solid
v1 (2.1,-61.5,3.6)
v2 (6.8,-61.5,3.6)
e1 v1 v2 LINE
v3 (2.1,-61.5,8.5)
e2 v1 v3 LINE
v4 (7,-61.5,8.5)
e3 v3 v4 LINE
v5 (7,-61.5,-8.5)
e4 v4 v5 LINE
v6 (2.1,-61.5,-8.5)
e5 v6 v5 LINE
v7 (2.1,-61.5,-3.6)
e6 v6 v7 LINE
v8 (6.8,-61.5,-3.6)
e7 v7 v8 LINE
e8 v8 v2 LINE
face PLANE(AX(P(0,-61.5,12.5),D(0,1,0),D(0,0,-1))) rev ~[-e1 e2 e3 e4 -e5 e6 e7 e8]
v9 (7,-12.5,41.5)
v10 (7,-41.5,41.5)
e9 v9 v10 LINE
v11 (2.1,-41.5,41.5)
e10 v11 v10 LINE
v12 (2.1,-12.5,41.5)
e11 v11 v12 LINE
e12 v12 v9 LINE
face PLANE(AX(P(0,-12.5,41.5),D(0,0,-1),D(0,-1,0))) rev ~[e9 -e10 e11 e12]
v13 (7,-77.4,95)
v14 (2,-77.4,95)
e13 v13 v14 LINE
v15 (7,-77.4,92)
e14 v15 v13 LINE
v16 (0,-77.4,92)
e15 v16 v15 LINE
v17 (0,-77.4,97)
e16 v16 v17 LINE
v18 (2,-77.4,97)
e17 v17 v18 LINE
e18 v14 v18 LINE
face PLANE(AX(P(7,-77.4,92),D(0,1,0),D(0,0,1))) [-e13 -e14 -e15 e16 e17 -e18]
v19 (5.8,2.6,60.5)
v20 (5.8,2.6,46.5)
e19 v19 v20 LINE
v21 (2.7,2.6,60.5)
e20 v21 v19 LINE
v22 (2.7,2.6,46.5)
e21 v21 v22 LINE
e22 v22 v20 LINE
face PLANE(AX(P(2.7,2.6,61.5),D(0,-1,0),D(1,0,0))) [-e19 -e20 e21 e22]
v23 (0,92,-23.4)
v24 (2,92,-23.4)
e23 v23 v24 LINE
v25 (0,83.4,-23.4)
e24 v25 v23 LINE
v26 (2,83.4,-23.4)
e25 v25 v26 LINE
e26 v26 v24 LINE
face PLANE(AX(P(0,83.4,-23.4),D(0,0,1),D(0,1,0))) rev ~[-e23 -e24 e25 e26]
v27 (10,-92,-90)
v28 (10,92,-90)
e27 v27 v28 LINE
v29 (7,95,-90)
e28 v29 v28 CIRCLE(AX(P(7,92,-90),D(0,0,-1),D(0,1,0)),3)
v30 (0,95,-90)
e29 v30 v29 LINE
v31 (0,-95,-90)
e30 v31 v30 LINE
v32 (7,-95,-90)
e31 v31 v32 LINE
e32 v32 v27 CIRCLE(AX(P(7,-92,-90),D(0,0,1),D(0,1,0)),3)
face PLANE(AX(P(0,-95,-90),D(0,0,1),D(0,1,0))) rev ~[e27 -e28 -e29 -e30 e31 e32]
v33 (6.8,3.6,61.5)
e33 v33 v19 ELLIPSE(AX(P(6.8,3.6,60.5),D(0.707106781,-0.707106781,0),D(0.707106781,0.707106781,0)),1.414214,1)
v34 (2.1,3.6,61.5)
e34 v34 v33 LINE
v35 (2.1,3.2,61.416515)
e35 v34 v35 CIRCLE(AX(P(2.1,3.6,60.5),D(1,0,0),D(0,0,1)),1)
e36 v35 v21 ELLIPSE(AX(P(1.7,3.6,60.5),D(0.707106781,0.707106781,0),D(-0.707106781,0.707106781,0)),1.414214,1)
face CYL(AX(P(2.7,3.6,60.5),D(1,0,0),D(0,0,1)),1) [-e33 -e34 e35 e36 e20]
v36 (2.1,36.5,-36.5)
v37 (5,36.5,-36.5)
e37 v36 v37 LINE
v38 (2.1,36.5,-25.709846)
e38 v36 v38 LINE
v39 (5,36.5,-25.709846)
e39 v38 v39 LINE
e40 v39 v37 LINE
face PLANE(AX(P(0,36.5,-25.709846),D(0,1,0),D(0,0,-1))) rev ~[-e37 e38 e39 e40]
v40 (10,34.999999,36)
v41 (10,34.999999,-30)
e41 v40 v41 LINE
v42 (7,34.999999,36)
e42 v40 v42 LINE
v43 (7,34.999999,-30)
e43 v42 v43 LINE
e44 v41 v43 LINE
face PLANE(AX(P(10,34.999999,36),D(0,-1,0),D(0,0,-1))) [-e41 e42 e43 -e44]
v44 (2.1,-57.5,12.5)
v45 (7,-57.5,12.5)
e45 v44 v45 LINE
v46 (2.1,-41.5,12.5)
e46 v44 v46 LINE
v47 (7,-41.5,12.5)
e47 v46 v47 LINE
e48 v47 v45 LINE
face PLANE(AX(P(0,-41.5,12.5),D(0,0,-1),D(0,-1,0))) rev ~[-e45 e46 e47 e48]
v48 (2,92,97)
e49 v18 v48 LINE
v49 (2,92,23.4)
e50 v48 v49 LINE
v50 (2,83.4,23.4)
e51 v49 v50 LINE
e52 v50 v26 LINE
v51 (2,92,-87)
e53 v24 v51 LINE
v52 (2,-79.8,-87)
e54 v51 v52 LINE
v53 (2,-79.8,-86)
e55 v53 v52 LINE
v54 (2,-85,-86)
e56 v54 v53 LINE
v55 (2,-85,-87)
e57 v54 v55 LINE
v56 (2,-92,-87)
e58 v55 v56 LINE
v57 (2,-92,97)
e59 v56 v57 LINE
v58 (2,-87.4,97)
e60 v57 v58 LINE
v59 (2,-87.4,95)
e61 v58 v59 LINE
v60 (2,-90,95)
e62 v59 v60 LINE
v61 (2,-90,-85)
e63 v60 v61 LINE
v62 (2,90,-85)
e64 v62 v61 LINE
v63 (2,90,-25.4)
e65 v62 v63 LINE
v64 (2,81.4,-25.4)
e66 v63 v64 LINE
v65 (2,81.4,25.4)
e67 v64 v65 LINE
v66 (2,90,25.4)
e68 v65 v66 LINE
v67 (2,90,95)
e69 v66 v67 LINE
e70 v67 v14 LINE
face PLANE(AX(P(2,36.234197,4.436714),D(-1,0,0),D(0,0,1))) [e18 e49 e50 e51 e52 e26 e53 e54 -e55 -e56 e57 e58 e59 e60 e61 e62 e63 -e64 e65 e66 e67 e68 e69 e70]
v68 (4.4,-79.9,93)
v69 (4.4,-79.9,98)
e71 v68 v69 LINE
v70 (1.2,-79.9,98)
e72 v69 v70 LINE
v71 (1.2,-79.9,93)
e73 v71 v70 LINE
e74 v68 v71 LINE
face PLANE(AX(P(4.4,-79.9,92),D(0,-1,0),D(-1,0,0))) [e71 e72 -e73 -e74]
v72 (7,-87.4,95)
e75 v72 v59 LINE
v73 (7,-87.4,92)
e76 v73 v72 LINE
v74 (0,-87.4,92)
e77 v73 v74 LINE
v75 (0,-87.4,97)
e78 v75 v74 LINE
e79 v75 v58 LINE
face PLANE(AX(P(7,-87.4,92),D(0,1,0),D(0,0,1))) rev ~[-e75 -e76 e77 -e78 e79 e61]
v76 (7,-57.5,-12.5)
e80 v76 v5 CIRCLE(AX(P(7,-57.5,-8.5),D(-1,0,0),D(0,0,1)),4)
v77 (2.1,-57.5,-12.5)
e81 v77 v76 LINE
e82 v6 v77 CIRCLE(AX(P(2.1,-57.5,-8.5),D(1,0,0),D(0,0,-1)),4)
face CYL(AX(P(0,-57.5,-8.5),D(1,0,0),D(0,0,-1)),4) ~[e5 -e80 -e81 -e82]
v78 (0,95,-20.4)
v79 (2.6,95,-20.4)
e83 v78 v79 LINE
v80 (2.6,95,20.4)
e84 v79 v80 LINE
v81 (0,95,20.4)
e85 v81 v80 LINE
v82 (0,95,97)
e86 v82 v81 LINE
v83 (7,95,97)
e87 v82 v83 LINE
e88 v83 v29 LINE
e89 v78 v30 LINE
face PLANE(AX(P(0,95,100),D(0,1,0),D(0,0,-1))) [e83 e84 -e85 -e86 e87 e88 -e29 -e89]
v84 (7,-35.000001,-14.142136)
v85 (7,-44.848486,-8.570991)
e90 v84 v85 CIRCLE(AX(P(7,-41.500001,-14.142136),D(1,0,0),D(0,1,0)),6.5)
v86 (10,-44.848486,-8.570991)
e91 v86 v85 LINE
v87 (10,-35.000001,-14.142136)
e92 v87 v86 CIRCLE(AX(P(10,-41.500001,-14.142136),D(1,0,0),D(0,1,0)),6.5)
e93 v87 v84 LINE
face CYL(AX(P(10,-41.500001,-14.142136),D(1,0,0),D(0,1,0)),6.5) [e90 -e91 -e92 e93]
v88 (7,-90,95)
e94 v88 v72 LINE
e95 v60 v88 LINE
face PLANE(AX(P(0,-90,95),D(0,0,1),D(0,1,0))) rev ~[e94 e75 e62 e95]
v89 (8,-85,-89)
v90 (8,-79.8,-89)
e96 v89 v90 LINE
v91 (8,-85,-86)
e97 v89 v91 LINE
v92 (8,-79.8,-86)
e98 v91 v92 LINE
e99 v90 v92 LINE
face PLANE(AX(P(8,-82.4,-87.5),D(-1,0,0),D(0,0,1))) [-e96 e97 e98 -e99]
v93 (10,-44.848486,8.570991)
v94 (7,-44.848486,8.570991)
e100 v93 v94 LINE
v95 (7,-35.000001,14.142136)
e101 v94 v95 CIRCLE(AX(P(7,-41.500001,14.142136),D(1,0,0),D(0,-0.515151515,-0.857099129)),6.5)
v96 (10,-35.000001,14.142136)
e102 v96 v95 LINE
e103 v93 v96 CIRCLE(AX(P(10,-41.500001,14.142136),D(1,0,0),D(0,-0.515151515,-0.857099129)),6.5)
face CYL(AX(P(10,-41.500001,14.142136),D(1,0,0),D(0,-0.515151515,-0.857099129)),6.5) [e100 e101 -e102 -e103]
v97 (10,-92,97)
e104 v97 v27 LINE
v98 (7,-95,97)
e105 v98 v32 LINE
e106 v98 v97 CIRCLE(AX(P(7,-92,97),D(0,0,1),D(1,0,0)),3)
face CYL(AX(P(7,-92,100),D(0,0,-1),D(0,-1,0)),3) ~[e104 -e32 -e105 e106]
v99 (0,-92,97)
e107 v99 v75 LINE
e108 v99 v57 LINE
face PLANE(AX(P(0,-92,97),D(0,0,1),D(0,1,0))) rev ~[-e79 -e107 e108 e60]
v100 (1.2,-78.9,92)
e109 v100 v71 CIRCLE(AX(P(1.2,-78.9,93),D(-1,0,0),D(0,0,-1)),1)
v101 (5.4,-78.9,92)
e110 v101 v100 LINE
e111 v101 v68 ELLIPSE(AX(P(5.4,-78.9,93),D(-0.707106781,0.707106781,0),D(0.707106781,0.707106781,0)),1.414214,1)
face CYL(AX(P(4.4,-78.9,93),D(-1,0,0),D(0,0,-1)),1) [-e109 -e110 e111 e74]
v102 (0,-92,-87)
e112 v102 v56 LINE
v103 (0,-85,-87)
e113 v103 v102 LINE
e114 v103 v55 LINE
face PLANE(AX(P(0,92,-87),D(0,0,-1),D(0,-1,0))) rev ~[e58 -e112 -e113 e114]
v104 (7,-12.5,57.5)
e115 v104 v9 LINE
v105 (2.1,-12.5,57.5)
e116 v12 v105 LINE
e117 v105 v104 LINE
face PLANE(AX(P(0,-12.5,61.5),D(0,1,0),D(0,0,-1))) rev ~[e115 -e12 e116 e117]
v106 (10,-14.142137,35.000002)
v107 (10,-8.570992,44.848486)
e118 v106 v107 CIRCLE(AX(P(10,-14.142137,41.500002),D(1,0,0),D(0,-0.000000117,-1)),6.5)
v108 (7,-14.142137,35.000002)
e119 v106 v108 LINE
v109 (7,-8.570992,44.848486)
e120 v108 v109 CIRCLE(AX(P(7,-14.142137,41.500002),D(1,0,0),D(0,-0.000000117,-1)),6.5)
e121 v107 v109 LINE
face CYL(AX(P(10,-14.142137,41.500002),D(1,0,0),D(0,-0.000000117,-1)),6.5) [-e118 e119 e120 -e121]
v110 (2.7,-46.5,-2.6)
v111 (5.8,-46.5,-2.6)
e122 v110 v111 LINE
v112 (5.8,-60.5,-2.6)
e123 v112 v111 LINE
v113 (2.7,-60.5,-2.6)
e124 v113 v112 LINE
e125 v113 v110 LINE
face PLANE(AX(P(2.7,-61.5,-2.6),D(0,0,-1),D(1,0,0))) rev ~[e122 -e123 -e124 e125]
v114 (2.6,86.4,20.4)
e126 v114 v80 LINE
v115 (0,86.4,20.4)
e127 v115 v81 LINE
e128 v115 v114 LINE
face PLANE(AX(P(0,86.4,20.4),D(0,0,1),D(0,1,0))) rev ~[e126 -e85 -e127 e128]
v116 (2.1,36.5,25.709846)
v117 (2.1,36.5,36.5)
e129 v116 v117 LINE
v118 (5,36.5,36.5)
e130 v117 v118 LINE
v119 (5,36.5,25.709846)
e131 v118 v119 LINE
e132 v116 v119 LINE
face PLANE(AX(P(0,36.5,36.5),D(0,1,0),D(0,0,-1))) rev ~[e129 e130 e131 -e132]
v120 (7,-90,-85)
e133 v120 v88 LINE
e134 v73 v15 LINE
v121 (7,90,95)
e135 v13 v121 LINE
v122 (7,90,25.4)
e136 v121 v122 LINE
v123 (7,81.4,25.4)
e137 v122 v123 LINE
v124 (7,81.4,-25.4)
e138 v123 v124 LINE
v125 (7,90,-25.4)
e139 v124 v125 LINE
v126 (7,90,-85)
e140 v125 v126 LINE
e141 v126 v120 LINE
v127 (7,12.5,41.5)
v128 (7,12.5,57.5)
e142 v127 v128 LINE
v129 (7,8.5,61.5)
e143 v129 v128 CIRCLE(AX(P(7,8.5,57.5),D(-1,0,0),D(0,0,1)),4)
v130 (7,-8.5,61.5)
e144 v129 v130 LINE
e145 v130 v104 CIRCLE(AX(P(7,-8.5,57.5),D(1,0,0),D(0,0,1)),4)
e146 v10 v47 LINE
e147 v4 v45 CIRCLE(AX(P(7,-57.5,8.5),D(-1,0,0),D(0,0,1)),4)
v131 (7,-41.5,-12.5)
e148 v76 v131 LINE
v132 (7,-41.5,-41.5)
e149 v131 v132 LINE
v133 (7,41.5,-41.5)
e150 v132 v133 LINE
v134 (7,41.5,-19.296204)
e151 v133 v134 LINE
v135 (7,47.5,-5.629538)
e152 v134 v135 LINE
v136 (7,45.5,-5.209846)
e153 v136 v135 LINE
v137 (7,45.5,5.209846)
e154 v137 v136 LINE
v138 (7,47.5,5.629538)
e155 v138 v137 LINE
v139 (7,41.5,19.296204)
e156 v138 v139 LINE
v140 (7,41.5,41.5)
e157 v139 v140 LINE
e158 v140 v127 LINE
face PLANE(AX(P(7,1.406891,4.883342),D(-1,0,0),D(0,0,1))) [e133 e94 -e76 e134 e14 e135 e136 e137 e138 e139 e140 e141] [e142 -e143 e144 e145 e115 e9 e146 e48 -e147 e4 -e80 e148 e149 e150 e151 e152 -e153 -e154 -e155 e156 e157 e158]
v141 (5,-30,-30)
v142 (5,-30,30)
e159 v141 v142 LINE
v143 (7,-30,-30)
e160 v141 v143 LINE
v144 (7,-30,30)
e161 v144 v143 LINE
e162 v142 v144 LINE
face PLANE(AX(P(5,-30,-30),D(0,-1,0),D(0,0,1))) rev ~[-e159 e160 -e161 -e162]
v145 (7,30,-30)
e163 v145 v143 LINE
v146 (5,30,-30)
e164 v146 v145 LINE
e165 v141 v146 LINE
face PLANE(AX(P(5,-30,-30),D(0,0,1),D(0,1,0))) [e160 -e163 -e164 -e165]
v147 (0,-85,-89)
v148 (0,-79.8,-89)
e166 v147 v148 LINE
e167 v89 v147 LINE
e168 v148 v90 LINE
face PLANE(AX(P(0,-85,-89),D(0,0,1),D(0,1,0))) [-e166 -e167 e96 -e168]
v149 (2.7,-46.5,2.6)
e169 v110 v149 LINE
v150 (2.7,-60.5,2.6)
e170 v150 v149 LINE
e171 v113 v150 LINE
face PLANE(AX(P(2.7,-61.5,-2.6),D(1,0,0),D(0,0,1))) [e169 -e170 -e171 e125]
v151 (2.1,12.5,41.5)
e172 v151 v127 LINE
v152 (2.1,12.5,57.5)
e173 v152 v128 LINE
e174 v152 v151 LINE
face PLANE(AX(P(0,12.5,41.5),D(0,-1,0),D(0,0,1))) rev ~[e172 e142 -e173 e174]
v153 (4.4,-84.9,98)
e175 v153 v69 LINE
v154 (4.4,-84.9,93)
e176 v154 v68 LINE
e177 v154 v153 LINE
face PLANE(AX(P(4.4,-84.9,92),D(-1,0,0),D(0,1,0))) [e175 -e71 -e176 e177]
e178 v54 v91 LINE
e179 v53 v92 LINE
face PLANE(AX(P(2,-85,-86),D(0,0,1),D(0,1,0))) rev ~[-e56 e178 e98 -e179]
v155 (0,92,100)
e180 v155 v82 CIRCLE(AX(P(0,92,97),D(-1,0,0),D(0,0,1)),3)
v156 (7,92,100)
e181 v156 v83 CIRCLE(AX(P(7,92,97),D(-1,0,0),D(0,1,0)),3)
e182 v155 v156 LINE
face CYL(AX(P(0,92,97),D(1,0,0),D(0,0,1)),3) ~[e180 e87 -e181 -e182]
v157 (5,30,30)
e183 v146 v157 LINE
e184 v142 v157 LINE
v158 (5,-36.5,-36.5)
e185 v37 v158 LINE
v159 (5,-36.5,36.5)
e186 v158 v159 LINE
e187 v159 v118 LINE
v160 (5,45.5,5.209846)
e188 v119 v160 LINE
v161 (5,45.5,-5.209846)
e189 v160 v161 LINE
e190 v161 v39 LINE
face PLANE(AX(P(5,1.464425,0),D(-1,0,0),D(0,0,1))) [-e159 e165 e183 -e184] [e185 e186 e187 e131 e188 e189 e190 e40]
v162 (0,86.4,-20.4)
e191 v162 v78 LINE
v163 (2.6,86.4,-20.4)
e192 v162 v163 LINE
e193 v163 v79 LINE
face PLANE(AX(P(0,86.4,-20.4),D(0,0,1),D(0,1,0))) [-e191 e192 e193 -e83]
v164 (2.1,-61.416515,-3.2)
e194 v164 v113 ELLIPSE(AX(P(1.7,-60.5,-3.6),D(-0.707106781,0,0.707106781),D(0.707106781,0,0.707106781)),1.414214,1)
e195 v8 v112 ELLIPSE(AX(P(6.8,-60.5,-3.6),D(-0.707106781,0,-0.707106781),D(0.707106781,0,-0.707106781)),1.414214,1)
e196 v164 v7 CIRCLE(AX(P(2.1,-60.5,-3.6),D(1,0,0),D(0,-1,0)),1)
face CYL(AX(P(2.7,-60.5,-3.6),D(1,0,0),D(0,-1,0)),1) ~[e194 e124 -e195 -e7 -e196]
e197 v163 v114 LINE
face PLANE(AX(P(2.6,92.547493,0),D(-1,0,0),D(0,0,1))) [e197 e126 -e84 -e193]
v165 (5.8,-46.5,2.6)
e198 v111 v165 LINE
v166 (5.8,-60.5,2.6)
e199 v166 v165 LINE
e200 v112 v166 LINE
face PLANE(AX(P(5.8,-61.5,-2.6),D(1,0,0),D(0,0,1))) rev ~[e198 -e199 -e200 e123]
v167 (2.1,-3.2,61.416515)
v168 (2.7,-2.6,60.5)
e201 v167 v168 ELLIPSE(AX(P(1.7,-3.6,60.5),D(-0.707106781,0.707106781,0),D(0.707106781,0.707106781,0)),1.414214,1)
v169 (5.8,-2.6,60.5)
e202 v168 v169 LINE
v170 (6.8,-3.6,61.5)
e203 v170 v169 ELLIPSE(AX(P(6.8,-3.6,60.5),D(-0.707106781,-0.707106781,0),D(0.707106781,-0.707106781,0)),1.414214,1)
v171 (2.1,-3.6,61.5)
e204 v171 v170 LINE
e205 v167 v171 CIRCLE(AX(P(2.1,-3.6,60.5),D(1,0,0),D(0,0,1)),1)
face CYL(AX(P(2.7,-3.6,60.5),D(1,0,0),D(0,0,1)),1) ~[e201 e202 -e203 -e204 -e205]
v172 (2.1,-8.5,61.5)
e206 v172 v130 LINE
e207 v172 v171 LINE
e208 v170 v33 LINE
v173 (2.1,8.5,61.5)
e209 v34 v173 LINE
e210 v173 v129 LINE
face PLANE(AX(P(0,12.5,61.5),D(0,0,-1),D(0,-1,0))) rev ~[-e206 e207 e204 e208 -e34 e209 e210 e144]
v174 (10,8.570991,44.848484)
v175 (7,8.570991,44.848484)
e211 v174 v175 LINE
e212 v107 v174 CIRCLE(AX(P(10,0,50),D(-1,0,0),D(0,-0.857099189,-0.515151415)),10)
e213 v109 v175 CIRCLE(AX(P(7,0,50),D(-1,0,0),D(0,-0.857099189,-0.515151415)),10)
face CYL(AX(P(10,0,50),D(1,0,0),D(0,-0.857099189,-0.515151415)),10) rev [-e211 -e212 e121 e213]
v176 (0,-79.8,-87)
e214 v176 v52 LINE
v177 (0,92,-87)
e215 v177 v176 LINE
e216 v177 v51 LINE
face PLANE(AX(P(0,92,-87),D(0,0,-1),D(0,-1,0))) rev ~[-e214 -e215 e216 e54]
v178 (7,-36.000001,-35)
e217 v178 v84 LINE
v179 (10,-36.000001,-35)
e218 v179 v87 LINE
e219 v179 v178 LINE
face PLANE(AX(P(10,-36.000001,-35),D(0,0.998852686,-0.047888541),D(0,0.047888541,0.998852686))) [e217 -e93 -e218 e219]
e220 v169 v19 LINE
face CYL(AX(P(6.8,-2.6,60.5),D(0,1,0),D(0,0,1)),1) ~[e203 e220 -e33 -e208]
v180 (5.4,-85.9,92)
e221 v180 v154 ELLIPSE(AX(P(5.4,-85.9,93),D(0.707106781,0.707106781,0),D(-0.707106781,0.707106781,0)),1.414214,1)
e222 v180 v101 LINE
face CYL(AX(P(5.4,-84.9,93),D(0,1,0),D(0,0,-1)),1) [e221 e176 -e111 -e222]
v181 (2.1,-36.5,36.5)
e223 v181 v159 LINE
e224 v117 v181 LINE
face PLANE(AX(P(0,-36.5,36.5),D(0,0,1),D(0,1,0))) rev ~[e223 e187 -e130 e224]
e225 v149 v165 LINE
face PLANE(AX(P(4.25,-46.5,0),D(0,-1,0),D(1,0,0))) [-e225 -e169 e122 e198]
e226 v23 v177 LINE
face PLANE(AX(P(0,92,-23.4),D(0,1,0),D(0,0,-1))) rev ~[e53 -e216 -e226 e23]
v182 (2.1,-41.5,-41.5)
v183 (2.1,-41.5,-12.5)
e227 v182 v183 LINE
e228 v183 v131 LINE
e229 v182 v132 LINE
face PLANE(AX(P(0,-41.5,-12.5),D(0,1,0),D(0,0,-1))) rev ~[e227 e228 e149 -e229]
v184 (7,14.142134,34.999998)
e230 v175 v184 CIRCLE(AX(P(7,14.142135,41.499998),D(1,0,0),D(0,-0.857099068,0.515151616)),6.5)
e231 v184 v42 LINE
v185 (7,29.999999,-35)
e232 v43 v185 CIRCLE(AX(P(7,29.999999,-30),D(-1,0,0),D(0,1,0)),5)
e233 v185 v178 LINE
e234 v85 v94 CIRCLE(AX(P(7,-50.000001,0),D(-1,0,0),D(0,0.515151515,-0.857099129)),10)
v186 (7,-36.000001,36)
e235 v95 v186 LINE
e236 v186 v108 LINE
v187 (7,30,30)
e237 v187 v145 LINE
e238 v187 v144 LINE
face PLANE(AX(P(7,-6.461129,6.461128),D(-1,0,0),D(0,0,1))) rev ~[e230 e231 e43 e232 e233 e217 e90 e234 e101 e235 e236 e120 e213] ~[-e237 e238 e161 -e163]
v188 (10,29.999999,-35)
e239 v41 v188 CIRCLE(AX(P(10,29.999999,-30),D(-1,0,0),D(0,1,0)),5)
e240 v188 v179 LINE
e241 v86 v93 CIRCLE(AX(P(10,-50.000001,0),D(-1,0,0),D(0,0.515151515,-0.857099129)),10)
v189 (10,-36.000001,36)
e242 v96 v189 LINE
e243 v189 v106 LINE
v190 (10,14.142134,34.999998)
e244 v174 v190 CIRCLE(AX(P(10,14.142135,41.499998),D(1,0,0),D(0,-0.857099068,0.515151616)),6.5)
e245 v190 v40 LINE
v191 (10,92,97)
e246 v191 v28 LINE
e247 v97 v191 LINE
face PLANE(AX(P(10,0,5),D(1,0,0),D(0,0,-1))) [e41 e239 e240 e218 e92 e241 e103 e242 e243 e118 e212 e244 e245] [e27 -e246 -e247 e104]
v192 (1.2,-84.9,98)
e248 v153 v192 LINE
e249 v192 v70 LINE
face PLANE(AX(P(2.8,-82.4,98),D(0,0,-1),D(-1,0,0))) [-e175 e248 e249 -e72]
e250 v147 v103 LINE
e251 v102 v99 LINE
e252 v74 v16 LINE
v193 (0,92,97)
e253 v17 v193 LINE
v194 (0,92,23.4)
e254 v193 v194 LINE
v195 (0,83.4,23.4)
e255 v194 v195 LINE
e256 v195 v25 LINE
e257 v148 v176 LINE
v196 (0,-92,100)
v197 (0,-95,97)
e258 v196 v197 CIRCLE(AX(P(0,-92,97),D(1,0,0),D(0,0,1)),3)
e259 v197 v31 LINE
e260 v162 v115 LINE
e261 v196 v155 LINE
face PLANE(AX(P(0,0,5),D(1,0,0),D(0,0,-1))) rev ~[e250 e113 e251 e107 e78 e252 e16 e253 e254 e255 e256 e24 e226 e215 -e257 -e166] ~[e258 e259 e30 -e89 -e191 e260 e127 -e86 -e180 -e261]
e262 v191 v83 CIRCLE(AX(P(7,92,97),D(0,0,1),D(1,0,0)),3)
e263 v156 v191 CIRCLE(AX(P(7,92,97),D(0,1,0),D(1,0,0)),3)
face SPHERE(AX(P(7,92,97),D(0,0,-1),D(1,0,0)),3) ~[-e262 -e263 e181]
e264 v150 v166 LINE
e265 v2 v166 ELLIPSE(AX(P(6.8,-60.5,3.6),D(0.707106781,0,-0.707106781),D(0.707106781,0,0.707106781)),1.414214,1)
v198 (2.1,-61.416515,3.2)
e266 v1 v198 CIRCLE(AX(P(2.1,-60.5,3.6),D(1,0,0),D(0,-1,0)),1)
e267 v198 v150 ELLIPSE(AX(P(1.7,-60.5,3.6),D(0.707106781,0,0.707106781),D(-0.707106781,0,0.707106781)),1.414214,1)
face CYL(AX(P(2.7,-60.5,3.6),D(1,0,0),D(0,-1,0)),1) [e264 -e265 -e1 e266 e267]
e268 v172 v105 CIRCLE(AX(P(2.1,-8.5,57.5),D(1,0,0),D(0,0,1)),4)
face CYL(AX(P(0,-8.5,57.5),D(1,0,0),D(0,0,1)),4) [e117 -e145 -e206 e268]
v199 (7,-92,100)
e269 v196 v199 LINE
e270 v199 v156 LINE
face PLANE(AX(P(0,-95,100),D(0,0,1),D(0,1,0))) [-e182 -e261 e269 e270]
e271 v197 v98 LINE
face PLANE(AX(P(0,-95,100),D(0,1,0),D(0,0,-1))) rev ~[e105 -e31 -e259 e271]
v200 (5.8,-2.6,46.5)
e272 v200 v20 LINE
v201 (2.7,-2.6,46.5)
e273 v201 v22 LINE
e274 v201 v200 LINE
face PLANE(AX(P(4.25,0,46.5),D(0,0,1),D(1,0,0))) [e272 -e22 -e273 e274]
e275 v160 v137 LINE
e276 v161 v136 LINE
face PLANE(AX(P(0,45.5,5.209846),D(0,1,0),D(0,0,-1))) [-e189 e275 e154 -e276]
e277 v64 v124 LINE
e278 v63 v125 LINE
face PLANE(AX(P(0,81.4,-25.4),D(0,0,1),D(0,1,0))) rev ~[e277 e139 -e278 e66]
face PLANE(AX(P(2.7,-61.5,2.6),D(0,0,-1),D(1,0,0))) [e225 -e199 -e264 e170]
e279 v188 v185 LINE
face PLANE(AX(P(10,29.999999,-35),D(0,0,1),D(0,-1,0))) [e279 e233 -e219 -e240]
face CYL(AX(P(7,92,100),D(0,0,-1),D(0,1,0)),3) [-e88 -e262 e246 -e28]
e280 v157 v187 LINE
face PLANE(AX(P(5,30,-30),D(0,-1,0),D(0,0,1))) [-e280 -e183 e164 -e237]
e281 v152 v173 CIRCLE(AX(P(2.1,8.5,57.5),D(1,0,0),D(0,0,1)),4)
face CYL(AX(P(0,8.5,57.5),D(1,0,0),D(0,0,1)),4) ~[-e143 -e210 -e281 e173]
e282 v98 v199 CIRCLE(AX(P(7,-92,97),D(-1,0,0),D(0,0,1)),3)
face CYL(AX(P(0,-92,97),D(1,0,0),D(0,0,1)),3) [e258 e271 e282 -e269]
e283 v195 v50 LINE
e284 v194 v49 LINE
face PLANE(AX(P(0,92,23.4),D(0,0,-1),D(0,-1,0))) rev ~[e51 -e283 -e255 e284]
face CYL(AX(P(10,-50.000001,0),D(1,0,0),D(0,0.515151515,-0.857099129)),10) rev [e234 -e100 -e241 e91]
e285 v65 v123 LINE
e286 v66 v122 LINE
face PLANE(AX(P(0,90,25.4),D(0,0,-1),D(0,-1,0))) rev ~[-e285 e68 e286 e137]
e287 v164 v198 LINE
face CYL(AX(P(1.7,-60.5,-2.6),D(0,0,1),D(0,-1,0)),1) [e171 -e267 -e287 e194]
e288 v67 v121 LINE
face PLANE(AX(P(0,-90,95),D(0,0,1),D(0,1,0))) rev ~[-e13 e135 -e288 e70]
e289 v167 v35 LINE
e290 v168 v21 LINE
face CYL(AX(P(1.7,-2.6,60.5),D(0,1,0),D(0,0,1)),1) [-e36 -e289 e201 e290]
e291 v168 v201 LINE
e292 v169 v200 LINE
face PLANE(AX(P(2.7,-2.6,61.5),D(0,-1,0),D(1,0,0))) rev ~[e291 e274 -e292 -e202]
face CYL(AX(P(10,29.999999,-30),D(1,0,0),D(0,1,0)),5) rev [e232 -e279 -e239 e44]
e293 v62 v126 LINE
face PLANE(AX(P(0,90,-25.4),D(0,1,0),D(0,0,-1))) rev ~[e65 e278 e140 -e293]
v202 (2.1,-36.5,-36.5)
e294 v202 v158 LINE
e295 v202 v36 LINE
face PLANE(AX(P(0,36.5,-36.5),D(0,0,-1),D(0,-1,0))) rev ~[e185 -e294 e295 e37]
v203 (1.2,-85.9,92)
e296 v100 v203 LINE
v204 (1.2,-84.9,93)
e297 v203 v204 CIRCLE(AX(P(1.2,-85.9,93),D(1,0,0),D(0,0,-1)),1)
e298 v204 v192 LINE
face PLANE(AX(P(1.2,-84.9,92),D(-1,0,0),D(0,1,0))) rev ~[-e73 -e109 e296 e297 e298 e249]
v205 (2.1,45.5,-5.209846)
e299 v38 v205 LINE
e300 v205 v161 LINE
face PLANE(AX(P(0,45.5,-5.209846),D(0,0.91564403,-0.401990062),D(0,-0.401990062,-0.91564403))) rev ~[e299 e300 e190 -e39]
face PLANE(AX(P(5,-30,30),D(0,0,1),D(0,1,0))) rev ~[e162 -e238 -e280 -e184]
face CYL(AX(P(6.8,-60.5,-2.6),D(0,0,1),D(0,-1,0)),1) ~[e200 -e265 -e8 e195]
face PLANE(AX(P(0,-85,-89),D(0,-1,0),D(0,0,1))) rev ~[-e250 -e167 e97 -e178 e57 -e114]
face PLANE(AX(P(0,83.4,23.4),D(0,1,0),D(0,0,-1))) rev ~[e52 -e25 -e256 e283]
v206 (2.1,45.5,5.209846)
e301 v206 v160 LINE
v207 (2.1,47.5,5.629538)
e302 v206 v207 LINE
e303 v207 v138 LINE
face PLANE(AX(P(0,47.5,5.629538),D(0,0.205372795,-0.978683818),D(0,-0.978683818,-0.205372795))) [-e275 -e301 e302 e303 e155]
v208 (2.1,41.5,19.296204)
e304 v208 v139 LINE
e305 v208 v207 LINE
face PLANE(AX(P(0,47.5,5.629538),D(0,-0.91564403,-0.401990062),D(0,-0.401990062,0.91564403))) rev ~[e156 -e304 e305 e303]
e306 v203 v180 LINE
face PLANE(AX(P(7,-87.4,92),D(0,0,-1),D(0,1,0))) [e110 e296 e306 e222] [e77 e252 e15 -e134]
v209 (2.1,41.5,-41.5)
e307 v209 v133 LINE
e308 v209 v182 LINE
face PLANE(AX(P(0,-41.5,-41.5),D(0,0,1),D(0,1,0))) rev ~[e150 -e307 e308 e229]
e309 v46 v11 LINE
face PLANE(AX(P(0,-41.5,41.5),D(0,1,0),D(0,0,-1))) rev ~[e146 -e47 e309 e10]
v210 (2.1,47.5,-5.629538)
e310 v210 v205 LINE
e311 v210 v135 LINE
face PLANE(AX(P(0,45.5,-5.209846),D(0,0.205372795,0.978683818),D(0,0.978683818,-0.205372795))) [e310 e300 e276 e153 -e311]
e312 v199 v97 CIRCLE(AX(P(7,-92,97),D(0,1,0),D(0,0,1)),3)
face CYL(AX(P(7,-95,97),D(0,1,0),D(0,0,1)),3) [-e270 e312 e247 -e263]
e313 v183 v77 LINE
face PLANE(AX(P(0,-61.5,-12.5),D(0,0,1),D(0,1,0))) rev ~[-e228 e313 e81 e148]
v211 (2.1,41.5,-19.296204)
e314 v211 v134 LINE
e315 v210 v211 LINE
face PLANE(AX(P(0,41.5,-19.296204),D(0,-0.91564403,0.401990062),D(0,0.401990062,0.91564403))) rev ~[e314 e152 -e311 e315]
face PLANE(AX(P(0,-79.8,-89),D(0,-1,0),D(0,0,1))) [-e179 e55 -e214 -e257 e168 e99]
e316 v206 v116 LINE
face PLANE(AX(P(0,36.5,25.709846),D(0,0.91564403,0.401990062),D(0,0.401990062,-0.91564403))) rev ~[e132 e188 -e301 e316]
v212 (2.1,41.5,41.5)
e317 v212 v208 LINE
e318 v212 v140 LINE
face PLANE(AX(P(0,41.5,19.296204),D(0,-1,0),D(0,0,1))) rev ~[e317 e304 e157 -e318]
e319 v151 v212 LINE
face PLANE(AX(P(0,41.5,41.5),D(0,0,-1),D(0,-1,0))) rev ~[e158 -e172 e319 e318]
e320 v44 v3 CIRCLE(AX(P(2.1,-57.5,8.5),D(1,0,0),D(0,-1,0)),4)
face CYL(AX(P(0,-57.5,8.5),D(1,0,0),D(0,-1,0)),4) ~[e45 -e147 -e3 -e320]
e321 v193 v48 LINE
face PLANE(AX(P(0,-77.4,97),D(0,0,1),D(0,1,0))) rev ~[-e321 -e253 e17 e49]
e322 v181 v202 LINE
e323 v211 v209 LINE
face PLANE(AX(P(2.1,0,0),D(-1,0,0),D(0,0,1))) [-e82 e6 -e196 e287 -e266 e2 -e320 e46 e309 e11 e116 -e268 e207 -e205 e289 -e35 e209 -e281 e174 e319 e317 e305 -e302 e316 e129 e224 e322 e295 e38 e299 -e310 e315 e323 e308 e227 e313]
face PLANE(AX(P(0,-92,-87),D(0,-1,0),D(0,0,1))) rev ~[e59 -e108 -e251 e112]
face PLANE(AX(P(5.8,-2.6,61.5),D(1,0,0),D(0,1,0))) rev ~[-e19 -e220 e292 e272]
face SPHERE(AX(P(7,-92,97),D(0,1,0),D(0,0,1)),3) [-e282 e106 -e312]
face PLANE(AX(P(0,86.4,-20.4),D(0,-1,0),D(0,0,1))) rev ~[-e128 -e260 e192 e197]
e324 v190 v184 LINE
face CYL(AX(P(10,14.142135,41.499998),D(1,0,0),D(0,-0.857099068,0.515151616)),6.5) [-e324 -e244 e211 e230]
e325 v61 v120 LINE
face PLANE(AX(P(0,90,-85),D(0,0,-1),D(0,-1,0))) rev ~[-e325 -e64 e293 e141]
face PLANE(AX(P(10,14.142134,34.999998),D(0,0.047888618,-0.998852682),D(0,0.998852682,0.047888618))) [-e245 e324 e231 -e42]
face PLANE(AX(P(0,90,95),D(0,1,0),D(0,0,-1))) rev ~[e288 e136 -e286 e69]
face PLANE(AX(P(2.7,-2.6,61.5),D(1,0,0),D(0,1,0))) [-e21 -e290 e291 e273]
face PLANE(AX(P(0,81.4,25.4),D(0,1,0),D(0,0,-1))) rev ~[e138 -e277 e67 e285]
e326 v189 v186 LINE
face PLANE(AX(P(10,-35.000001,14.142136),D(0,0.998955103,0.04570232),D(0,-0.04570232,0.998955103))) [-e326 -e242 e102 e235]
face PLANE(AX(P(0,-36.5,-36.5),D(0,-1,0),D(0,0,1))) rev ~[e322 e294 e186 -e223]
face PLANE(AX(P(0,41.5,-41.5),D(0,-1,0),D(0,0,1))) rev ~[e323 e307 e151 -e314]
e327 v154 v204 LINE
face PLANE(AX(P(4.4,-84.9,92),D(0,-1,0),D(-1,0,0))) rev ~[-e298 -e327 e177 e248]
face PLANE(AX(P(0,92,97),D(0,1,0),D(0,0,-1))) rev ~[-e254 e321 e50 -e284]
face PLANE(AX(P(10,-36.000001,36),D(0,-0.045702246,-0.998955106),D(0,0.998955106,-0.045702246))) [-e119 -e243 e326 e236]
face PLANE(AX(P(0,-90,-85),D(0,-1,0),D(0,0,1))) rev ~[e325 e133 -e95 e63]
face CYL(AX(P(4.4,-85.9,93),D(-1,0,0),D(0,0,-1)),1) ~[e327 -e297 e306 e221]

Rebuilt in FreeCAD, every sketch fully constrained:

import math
import FreeCAD as App
import Part
import Sketcher

V = App.Vector


def edges_at(feature, points):
    """Names of the edges that pass closest to the given points."""
    edges = feature.Shape.Edges
    near = lambda p: min(range(len(edges)), key=lambda i: edges[i].distToShape(Part.Vertex(*p))[0])
    return sorted({f"Edge{near(p) + 1}" for p in points})


def add_polygon(sketch, points):
    """Adds a closed chain of lines whose ends are joined by coincident constraints."""
    first, n = sketch.GeometryCount, len(points)
    for a, b in zip(points, points[1:] + points[:1]):
        sketch.addGeometry(Part.LineSegment(App.Vector(*a, 0), App.Vector(*b, 0)), False)
    for i in range(n):
        sketch.addConstraint(Sketcher.Constraint("Coincident", first + i, 2, first + (i + 1) % n, 1))

doc = App.newDocument("Part")
body = doc.addObject("PartDesign::Body", "Body")

sketch1 = body.newObject("Sketcher::SketchObject", "Sketch")
sketch1.AttachmentSupport = (doc.getObject("YZ_Plane"), [""])
sketch1.MapMode = "FlatFace"
add_polygon(sketch1, [(95, 100), (-95, 100), (-95, -90), (95, -90)])
sketch1.addConstraint([
    Sketcher.Constraint("Horizontal", 0),
    Sketcher.Constraint("Vertical", 1),
    Sketcher.Constraint("Horizontal", 2),
    Sketcher.Constraint("Vertical", 3),
    Sketcher.Constraint("Equal", 2, 1),
    Sketcher.Constraint("DistanceX", 0, 2, 0, 1, 190.0),
    Sketcher.Constraint("DistanceX", 0, 2, -1, 1, 95.0),
    Sketcher.Constraint("DistanceY", -1, 1, 0, 2, 100.0),
])
pad1 = body.newObject("PartDesign::Pad", "Pad")
pad1.Profile = sketch1
pad1.Length = 10

sketch2 = body.newObject("Sketcher::SketchObject", "Sketch001")
sketch2.AttachmentSupport = (doc.getObject("YZ_Plane"), [""])
sketch2.MapMode = "FlatFace"
add_polygon(sketch2, [(-36, 36), (36, 36), (36, 26), (46, 5), (46, -5), (36, -26), (36, -36), (-36, -36)])
sketch2.addConstraint([
    Sketcher.Constraint("Horizontal", 0),
    Sketcher.Constraint("Vertical", 1),
    Sketcher.Constraint("Vertical", 3),
    Sketcher.Constraint("Vertical", 5),
    Sketcher.Constraint("Horizontal", 6),
    Sketcher.Constraint("Vertical", 7),
    Sketcher.Constraint("Symmetric", 0, 2, 6, 2, -1, 1),
    Sketcher.Constraint("Symmetric", 1, 2, 4, 2, -1),
    Sketcher.Constraint("Equal", 6, 7),
    Sketcher.Constraint("Equal", 2, 4),
    Sketcher.Constraint("DistanceX", 0, 1, 0, 2, 73.0),
    Sketcher.Constraint("DistanceX", 1, 2, 2, 2, 9.0),
    Sketcher.Constraint("DistanceY", 2, 2, 1, 2, 20.5),
    Sketcher.Constraint("DistanceY", 3, 2, 3, 1, 10.419692),
])
pocket1 = body.newObject("PartDesign::Pocket", "Pocket")
pocket1.Profile = sketch2
pocket1.Length = 5
pocket1.Reversed = True

sketch3 = body.newObject("Sketcher::SketchObject", "Sketch002")
sketch3.AttachmentSupport = (doc.getObject("YZ_Plane"), [""])
sketch3.MapMode = "FlatFace"
sketch3.AttachmentOffset = App.Placement(V(0, 0, 5), App.Rotation())
add_polygon(sketch3, [(30, -30), (-30, -30), (-30, 30), (30, 30)])
sketch3.addConstraint([
    Sketcher.Constraint("Horizontal", 0),
    Sketcher.Constraint("Vertical", 1),
    Sketcher.Constraint("Horizontal", 2),
    Sketcher.Constraint("Vertical", 3),
    Sketcher.Constraint("Symmetric", 0, 2, 2, 2, -1, 1),
    Sketcher.Constraint("Equal", 2, 1),
    Sketcher.Constraint("DistanceX", 0, 2, 0, 1, 60.0),
])
pocket2 = body.newObject("PartDesign::Pocket", "Pocket001")
pocket2.Profile = sketch3
pocket2.Type = "ThroughAll"
pocket2.Reversed = True

sketch4 = body.newObject("Sketcher::SketchObject", "Sketch003")
sketch4.AttachmentSupport = (doc.getObject("YZ_Plane"), [""])
sketch4.MapMode = "FlatFace"
sketch4.AttachmentOffset = App.Placement(V(0, 0, 10), App.Rotation())
sketch4.addGeometry([
    Part.LineSegment(V(-36, -35, 0), V(30, -35, 0)),
    Part.ArcOfCircle(Part.Circle(V(30, -30, 0), V(0, 0, 1), 5), math.radians(-90), math.radians(0)),
    Part.LineSegment(V(35, -30, 0), V(35, 36, 0)),
    Part.LineSegment(V(35, 36, 0), V(14, 35, 0)),
    Part.ArcOfCircle(Part.Circle(V(14, 41, 0), V(0, 0, 1), 6), math.radians(149), math.radians(270)),
    Part.ArcOfCircle(Part.Circle(V(0, 50, 0), V(0, 0, 1), 10), math.radians(-31), math.radians(211)),
    Part.ArcOfCircle(Part.Circle(V(-14, 42, 0), V(0, 0, 1), 7), math.radians(-90), math.radians(31)),
    Part.LineSegment(V(-14, 35, 0), V(-36, 36, 0)),
    Part.LineSegment(V(-36, 36, 0), V(-35, 14, 0)),
    Part.ArcOfCircle(Part.Circle(V(-42, 14, 0), V(0, 0, 1), 6), math.radians(-121), math.radians(0)),
    Part.ArcOfCircle(Part.Circle(V(-50, 0, 0), V(0, 0, 1), 10), math.radians(59), math.radians(301)),
    Part.ArcOfCircle(Part.Circle(V(-42, -14, 0), V(0, 0, 1), 6), math.radians(0), math.radians(121)),
    Part.LineSegment(V(-35, -14, 0), V(-36, -35, 0)),
], False)
sketch4.addConstraint([
    Sketcher.Constraint("Tangent", 0, 2, 1, 1),
    Sketcher.Constraint("Tangent", 1, 2, 2, 1),
    Sketcher.Constraint("Coincident", 2, 2, 3, 1),
    Sketcher.Constraint("Coincident", 3, 2, 4, 2),
    Sketcher.Constraint("Tangent", 4, 1, 5, 1),
    Sketcher.Constraint("Tangent", 5, 2, 6, 2),
    Sketcher.Constraint("Coincident", 6, 1, 7, 1),
    Sketcher.Constraint("Coincident", 7, 2, 8, 1),
    Sketcher.Constraint("Coincident", 8, 2, 9, 2),
    Sketcher.Constraint("Tangent", 9, 1, 10, 1),
    Sketcher.Constraint("Tangent", 10, 2, 11, 2),
    Sketcher.Constraint("Coincident", 11, 1, 12, 1),
    Sketcher.Constraint("Coincident", 12, 2, 0, 1),
    Sketcher.Constraint("Horizontal", 0),
    Sketcher.Constraint("Vertical", 2),
    Sketcher.Constraint("Equal", 4, 6),
    Sketcher.Constraint("Equal", 6, 9),
    Sketcher.Constraint("Equal", 5, 10),
    Sketcher.Constraint("Equal", 9, 11),
    Sketcher.Constraint("Symmetric", 4, 3, 6, 3, -2),
    Sketcher.Constraint("Symmetric", 9, 3, 11, 3, -1),
    Sketcher.Constraint("Horizontal", 2, 2, 7, 2),
    Sketcher.Constraint("Horizontal", 9, 3, 8, 2),
    Sketcher.Constraint("Vertical", 4, 3, 3, 2),
    Sketcher.Constraint("Vertical", 7, 2, 12, 2),
    Sketcher.Constraint("Equal", 0, 2),
    Sketcher.Constraint("Equal", 7, 8),
    Sketcher.Constraint("Equal", 3, 12),
    Sketcher.Constraint("Radius", 1, 5.0),
    Sketcher.Constraint("Radius", 5, 10.0),
    Sketcher.Constraint("Radius", 4, 6.5),
    Sketcher.Constraint("DistanceX", 0, 1, 0, 2, 66.0),
    Sketcher.Constraint("DistanceX", -1, 1, 1, 3, 29.999999),
    Sketcher.Constraint("DistanceY", 1, 3, -1, 1, 30.0),
    Sketcher.Constraint("DistanceY", -1, 1, 5, 3, 50.0),
    Sketcher.Constraint("DistanceX", 10, 3, -1, 1, 50.000001),
    Sketcher.Constraint("DistanceY", -1, 1, 3, 2, 34.999998),
    Sketcher.Constraint("DistanceX", 8, 2, -1, 1, 35.000001),
])
pocket3 = body.newObject("PartDesign::Pocket", "Pocket002")
pocket3.Profile = sketch4
pocket3.Length = 3

sketch5 = body.newObject("Sketcher::SketchObject", "Sketch004")
sketch5.AttachmentSupport = (doc.getObject("YZ_Plane"), [""])
sketch5.MapMode = "FlatFace"
add_polygon(sketch5, [(99, -20), (86, -20), (86, 20), (99, 20)])
sketch5.addConstraint([
    Sketcher.Constraint("Horizontal", 0),
    Sketcher.Constraint("Vertical", 1),
    Sketcher.Constraint("Horizontal", 2),
    Sketcher.Constraint("Vertical", 3),
    Sketcher.Constraint("DistanceY", 1, 1, 1, 2, 40.8),
    Sketcher.Constraint("DistanceX", -1, 1, 0, 2, 86.4),
    Sketcher.Constraint("DistanceY", 0, 2, -1, 1, 20.4),
    Sketcher.Constraint("DistanceX", 0, 2, 0, 1, 12.294985),
])
pocket4 = body.newObject("PartDesign::Pocket", "Pocket003")
pocket4.Profile = sketch5
pocket4.Length = 2.6
pocket4.Reversed = True

sketch6 = body.newObject("Sketcher::SketchObject", "Sketch005")
sketch6.AttachmentSupport = (doc.getObject("YZ_Plane"), [""])
sketch6.MapMode = "FlatFace"
add_polygon(sketch6, [(90, -25.4), (90, -85), (-90, -85), (-90, 95), (90, 95), (90, 25.4), (81.4, 25.4), (81.4, -25.4)])
add_polygon(sketch6, [(-41.5, -12.5), (-41.5, -41.5), (41.5, -41.5), (41.5, -19.3), (47.5, -5.6), (45.5, -5.2), (45.5, 5.2), (47.5, 5.6), (41.5, 19.3), (41.5, 41.5), (12.5, 41.5), (12.5, 61.5), (-12.5, 61.5), (-12.5, 41.5), (-41.5, 41.5), (-41.5, 12.5), (-61.5, 12.5), (-61.5, -12.5)])
sketch6.addConstraint([
    Sketcher.Constraint("Vertical", 0),
    Sketcher.Constraint("Horizontal", 1),
    Sketcher.Constraint("Vertical", 2),
    Sketcher.Constraint("Horizontal", 3),
    Sketcher.Constraint("Vertical", 4),
    Sketcher.Constraint("Horizontal", 5),
    Sketcher.Constraint("Vertical", 6),
    Sketcher.Constraint("Horizontal", 7),
    Sketcher.Constraint("Vertical", 8),
    Sketcher.Constraint("Horizontal", 9),
    Sketcher.Constraint("Vertical", 10),
    Sketcher.Constraint("Vertical", 13),
    Sketcher.Constraint("Vertical", 16),
    Sketcher.Constraint("Horizontal", 17),
    Sketcher.Constraint("Vertical", 18),
    Sketcher.Constraint("Horizontal", 19),
    Sketcher.Constraint("Vertical", 20),
    Sketcher.Constraint("Horizontal", 21),
    Sketcher.Constraint("Vertical", 22),
    Sketcher.Constraint("Horizontal", 23),
    Sketcher.Constraint("Vertical", 24),
    Sketcher.Constraint("Horizontal", 25),
    Sketcher.Constraint("Symmetric", 8, 2, 16, 2, -1, 1),
    Sketcher.Constraint("Symmetric", 9, 2, 21, 2, -1, 1),
    Sketcher.Constraint("Symmetric", 4, 2, 7, 2, -1),
    Sketcher.Constraint("Symmetric", 11, 2, 14, 2, -1),
    Sketcher.Constraint("Symmetric", 10, 2, 15, 2, -1),
    Sketcher.Constraint("Equal", 17, 21),
    Sketcher.Constraint("Equal", 3, 2),
    Sketcher.Constraint("Equal", 21, 8),
    Sketcher.Constraint("Equal", 25, 18),
    Sketcher.Constraint("Equal", 8, 22),
    Sketcher.Constraint("Equal", 19, 24),
    Sketcher.Constraint("Equal", 12, 14),
    Sketcher.Constraint("DistanceX", 1, 2, 1, 1, 180.0),
    Sketcher.Constraint("DistanceX", 9, 1, 9, 2, 83.0),
    Sketcher.Constraint("DistanceX", 17, 2, 17, 1, 29.0),
    Sketcher.Constraint("DistanceX", 23, 2, 23, 1, 20.0),
    Sketcher.Constraint("DistanceX", 5, 2, 5, 1, 8.6),
    Sketcher.Constraint("DistanceY", 0, 2, 0, 1, 59.6),
    Sketcher.Constraint("DistanceY", 4, 2, 4, 1, 69.6),
    Sketcher.Constraint("DistanceX", -1, 1, 0, 2, 90.0),
    Sketcher.Constraint("DistanceX", 10, 2, 11, 2, 6.0),
    Sketcher.Constraint("DistanceX", 12, 2, 11, 2, 2.0),
    Sketcher.Constraint("DistanceY", 13, 1, 13, 2, 10.419692),
    Sketcher.Constraint("Distance", 12, 2.043561),
    Sketcher.Constraint("DistanceY", 10, 1, 10, 2, 22.203796),
])
pocket5 = body.newObject("PartDesign::Pocket", "Pocket004")
pocket5.Profile = sketch6
pocket5.Length = 7
pocket5.Reversed = True
doc.recompute()

fillet = body.newObject("PartDesign::Fillet", "Fillet")
fillet.Base = (pocket5, edges_at(pocket5, [
    (10, 95, 5),
    (10, 0, 100),
    (5, 95, 100),
    (5, -95, 100),
    (10, -95, 5),
]))
fillet.Radius = 3

sketch7 = body.newObject("Sketcher::SketchObject", "Sketch006")
sketch7.AttachmentSupport = (doc.getObject("XZ_Plane"), [""])
sketch7.MapMode = "FlatFace"
sketch7.AttachmentOffset = App.Placement(V(0, 0, 61.5), App.Rotation())
add_polygon(sketch7, [(2.7, 2.6), (2.7, -2.6), (5.8, -2.6), (5.8, 2.6)])
sketch7.addConstraint([
    Sketcher.Constraint("Vertical", 0),
    Sketcher.Constraint("Horizontal", 1),
    Sketcher.Constraint("Vertical", 2),
    Sketcher.Constraint("Horizontal", 3),
    Sketcher.Constraint("DistanceX", 1, 1, 1, 2, 3.1),
    Sketcher.Constraint("DistanceY", 0, 2, 0, 1, 5.2),
    Sketcher.Constraint("DistanceX", -1, 1, 0, 2, 2.7),
    Sketcher.Constraint("DistanceY", 0, 2, -1, 1, 2.6),
])
pocket6 = body.newObject("PartDesign::Pocket", "Pocket005")
pocket6.Profile = sketch7
pocket6.Length = 15
doc.recompute()

fillet2 = body.newObject("PartDesign::Fillet", "Fillet001")
fillet2.Base = (pocket6, edges_at(pocket6, [
    (2.7, -61.5, 0),
    (4.25, -61.5, -2.6),
    (5.8, -61.5, 0),
    (4.25, -61.5, 2.6),
]))
fillet2.Radius = 1

sketch8 = body.newObject("Sketcher::SketchObject", "Sketch007")
sketch8.AttachmentSupport = (doc.getObject("XY_Plane"), [""])
sketch8.MapMode = "FlatFace"
sketch8.AttachmentOffset = App.Placement(V(0, 0, 61.5), App.Rotation())
add_polygon(sketch8, [(2.7, 2.6), (2.7, -2.6), (5.8, -2.6), (5.8, 2.6)])
sketch8.addConstraint([
    Sketcher.Constraint("Vertical", 0),
    Sketcher.Constraint("Horizontal", 1),
    Sketcher.Constraint("Vertical", 2),
    Sketcher.Constraint("Horizontal", 3),
    Sketcher.Constraint("DistanceX", 1, 1, 1, 2, 3.1),
    Sketcher.Constraint("DistanceY", 0, 2, 0, 1, 5.2),
    Sketcher.Constraint("DistanceX", -1, 1, 0, 2, 2.7),
    Sketcher.Constraint("DistanceY", 0, 2, -1, 1, 2.6),
])
pocket7 = body.newObject("PartDesign::Pocket", "Pocket006")
pocket7.Profile = sketch8
pocket7.Length = 15
doc.recompute()

fillet3 = body.newObject("PartDesign::Fillet", "Fillet002")
fillet3.Base = (pocket7, edges_at(pocket7, [
    (2.7, 0, 61.5),
    (4.25, -2.6, 61.5),
    (5.8, 0, 61.5),
    (4.25, 2.6, 61.5),
]))
fillet3.Radius = 1
doc.recompute()

fillet4 = body.newObject("PartDesign::Fillet", "Fillet003")
fillet4.Base = (fillet3, edges_at(fillet3, [
    (3.5, -61.5, -12.5),
    (3.5, -61.5, 12.5),
    (3.5, -12.5, 61.5),
    (3.5, 12.5, 61.5),
]))
fillet4.Radius = 4

sketch9 = body.newObject("Sketcher::SketchObject", "Sketch008")
sketch9.AttachmentSupport = (doc.getObject("YZ_Plane"), [""])
sketch9.MapMode = "FlatFace"
add_polygon(sketch9, [(-79.8, -89), (-85, -89), (-85, -85), (-79.8, -85)])
sketch9.addConstraint([
    Sketcher.Constraint("Horizontal", 0),
    Sketcher.Constraint("Vertical", 1),
    Sketcher.Constraint("Horizontal", 2),
    Sketcher.Constraint("Vertical", 3),
    Sketcher.Constraint("DistanceY", 1, 1, 1, 2, 4.0),
    Sketcher.Constraint("DistanceX", 0, 2, 0, 1, 5.2),
    Sketcher.Constraint("DistanceX", 0, 2, -1, 1, 85.0),
    Sketcher.Constraint("DistanceY", 0, 2, -1, 1, 89.0),
])
pocket8 = body.newObject("PartDesign::Pocket", "Pocket007")
pocket8.Profile = sketch9
pocket8.Length = 2
pocket8.Reversed = True

sketch10 = body.newObject("Sketcher::SketchObject", "Sketch009")
sketch10.AttachmentSupport = (doc.getObject("YZ_Plane"), [""])
sketch10.MapMode = "FlatFace"
sketch10.AttachmentOffset = App.Placement(V(0, 0, 2), App.Rotation())
add_polygon(sketch10, [(-79.8, -89), (-85, -89), (-85, -86), (-79.8, -86)])
sketch10.addConstraint([
    Sketcher.Constraint("Horizontal", 0),
    Sketcher.Constraint("Vertical", 1),
    Sketcher.Constraint("Horizontal", 2),
    Sketcher.Constraint("Vertical", 3),
    Sketcher.Constraint("DistanceY", 1, 1, 1, 2, 3.0),
    Sketcher.Constraint("DistanceX", 0, 2, 0, 1, 5.2),
    Sketcher.Constraint("DistanceX", 0, 2, -1, 1, 85.0),
    Sketcher.Constraint("DistanceY", 0, 2, -1, 1, 89.0),
])
pocket9 = body.newObject("PartDesign::Pocket", "Pocket008")
pocket9.Profile = sketch10
pocket9.Length = 6
pocket9.Reversed = True

sketch11 = body.newObject("Sketcher::SketchObject", "Sketch010")
sketch11.AttachmentSupport = (doc.getObject("YZ_Plane"), [""])
sketch11.MapMode = "FlatFace"
sketch11.AttachmentOffset = App.Placement(V(0, 0, 7), App.Rotation())
add_polygon(sketch11, [(-77.4, 92), (-87.4, 92), (-87.4, 95), (-77.4, 95)])
sketch11.addConstraint([
    Sketcher.Constraint("Horizontal", 0),
    Sketcher.Constraint("Vertical", 1),
    Sketcher.Constraint("Horizontal", 2),
    Sketcher.Constraint("Vertical", 3),
    Sketcher.Constraint("DistanceX", 0, 2, 0, 1, 10.0),
    Sketcher.Constraint("DistanceY", 1, 1, 1, 2, 3.0),
    Sketcher.Constraint("DistanceY", -1, 1, 0, 2, 92.0),
    Sketcher.Constraint("DistanceX", 0, 2, -1, 1, 87.4),
])
pad2 = body.newObject("PartDesign::Pad", "Pad001")
pad2.Profile = sketch11
pad2.Length = 7
pad2.Reversed = True

sketch12 = body.newObject("Sketcher::SketchObject", "Sketch011")
sketch12.AttachmentSupport = (doc.getObject("XY_Plane"), [""])
sketch12.MapMode = "FlatFace"
sketch12.AttachmentOffset = App.Placement(V(0, 0, 92), App.Rotation())
add_polygon(sketch12, [(4.4, -79.9), (4.4, -84.9), (1.2, -84.9), (1.2, -79.9)])
sketch12.addConstraint([
    Sketcher.Constraint("Vertical", 0),
    Sketcher.Constraint("Horizontal", 1),
    Sketcher.Constraint("Vertical", 2),
    Sketcher.Constraint("Horizontal", 3),
    Sketcher.Constraint("DistanceY", 0, 2, 0, 1, 5.0),
    Sketcher.Constraint("DistanceX", 1, 2, 1, 1, 3.2),
    Sketcher.Constraint("DistanceX", -1, 1, 0, 2, 4.4),
    Sketcher.Constraint("DistanceY", 0, 2, -1, 1, 84.9),
])
pocket10 = body.newObject("PartDesign::Pocket", "Pocket009")
pocket10.Profile = sketch12
pocket10.Length = 6
pocket10.Reversed = True
doc.recompute()

fillet5 = body.newObject("PartDesign::Fillet", "Fillet004")
fillet5.Base = (pocket10, edges_at(pocket10, [(4.4, -82.4, 92), (2.8, -84.9, 92), (2.8, -79.9, 92)]))
fillet5.Radius = 1

sketch13 = body.newObject("Sketcher::SketchObject", "Sketch012")
sketch13.AttachmentSupport = (doc.getObject("YZ_Plane"), [""])
sketch13.MapMode = "FlatFace"
add_polygon(sketch13, [(66, -66), (-66, -66), (-66, 66), (66, 66)])
sketch13.addConstraint([
    Sketcher.Constraint("Horizontal", 0),
    Sketcher.Constraint("Vertical", 1),
    Sketcher.Constraint("Horizontal", 2),
    Sketcher.Constraint("Vertical", 3),
    Sketcher.Constraint("Symmetric", 0, 2, 2, 2, -1, 1),
    Sketcher.Constraint("DistanceX", 0, 2, 0, 1, 131.954018),
    Sketcher.Constraint("DistanceY", 1, 1, 1, 2, 131.159115),
])
pocket11 = body.newObject("PartDesign::Pocket", "Pocket010")
pocket11.Profile = sketch13
pocket11.Length = 2.1
pocket11.Reversed = True

sketch14 = body.newObject("Sketcher::SketchObject", "Sketch013")
sketch14.AttachmentSupport = (doc.getObject("YZ_Plane"), [""])
sketch14.MapMode = "FlatFace"
add_polygon(sketch14, [(92, -23.4), (92, -87), (-92, -87), (-92, 97), (-87.4, 97), (-87.4, 92), (-77.4, 92), (-77.4, 97), (92, 97), (92, 23.4), (83.4, 23.4), (83.4, -23.4)])
sketch14.addConstraint([
    Sketcher.Constraint("Vertical", 0),
    Sketcher.Constraint("Horizontal", 1),
    Sketcher.Constraint("Vertical", 2),
    Sketcher.Constraint("Horizontal", 3),
    Sketcher.Constraint("Vertical", 4),
    Sketcher.Constraint("Horizontal", 5),
    Sketcher.Constraint("Vertical", 6),
    Sketcher.Constraint("Horizontal", 7),
    Sketcher.Constraint("Vertical", 8),
    Sketcher.Constraint("Horizontal", 9),
    Sketcher.Constraint("Vertical", 10),
    Sketcher.Constraint("Horizontal", 11),
    Sketcher.Constraint("Symmetric", 2, 2, 7, 2, -2),
    Sketcher.Constraint("Symmetric", 8, 2, 11, 2, -1),
    Sketcher.Constraint("Equal", 1, 2),
    Sketcher.Constraint("DistanceX", 1, 2, 1, 1, 184.0),
    Sketcher.Constraint("DistanceX", 5, 1, 5, 2, 10.0),
    Sketcher.Constraint("DistanceY", 4, 2, 4, 1, 5.0),
    Sketcher.Constraint("DistanceX", 3, 1, 3, 2, 4.6),
    Sketcher.Constraint("DistanceX", 9, 2, 9, 1, 8.6),
    Sketcher.Constraint("DistanceY", 0, 2, 0, 1, 63.6),
    Sketcher.Constraint("DistanceY", 8, 2, 8, 1, 73.6),
])
pocket12 = body.newObject("PartDesign::Pocket", "Pocket011")
pocket12.Profile = sketch14
pocket12.Length = 2
pocket12.Reversed = True

doc.recompute()
